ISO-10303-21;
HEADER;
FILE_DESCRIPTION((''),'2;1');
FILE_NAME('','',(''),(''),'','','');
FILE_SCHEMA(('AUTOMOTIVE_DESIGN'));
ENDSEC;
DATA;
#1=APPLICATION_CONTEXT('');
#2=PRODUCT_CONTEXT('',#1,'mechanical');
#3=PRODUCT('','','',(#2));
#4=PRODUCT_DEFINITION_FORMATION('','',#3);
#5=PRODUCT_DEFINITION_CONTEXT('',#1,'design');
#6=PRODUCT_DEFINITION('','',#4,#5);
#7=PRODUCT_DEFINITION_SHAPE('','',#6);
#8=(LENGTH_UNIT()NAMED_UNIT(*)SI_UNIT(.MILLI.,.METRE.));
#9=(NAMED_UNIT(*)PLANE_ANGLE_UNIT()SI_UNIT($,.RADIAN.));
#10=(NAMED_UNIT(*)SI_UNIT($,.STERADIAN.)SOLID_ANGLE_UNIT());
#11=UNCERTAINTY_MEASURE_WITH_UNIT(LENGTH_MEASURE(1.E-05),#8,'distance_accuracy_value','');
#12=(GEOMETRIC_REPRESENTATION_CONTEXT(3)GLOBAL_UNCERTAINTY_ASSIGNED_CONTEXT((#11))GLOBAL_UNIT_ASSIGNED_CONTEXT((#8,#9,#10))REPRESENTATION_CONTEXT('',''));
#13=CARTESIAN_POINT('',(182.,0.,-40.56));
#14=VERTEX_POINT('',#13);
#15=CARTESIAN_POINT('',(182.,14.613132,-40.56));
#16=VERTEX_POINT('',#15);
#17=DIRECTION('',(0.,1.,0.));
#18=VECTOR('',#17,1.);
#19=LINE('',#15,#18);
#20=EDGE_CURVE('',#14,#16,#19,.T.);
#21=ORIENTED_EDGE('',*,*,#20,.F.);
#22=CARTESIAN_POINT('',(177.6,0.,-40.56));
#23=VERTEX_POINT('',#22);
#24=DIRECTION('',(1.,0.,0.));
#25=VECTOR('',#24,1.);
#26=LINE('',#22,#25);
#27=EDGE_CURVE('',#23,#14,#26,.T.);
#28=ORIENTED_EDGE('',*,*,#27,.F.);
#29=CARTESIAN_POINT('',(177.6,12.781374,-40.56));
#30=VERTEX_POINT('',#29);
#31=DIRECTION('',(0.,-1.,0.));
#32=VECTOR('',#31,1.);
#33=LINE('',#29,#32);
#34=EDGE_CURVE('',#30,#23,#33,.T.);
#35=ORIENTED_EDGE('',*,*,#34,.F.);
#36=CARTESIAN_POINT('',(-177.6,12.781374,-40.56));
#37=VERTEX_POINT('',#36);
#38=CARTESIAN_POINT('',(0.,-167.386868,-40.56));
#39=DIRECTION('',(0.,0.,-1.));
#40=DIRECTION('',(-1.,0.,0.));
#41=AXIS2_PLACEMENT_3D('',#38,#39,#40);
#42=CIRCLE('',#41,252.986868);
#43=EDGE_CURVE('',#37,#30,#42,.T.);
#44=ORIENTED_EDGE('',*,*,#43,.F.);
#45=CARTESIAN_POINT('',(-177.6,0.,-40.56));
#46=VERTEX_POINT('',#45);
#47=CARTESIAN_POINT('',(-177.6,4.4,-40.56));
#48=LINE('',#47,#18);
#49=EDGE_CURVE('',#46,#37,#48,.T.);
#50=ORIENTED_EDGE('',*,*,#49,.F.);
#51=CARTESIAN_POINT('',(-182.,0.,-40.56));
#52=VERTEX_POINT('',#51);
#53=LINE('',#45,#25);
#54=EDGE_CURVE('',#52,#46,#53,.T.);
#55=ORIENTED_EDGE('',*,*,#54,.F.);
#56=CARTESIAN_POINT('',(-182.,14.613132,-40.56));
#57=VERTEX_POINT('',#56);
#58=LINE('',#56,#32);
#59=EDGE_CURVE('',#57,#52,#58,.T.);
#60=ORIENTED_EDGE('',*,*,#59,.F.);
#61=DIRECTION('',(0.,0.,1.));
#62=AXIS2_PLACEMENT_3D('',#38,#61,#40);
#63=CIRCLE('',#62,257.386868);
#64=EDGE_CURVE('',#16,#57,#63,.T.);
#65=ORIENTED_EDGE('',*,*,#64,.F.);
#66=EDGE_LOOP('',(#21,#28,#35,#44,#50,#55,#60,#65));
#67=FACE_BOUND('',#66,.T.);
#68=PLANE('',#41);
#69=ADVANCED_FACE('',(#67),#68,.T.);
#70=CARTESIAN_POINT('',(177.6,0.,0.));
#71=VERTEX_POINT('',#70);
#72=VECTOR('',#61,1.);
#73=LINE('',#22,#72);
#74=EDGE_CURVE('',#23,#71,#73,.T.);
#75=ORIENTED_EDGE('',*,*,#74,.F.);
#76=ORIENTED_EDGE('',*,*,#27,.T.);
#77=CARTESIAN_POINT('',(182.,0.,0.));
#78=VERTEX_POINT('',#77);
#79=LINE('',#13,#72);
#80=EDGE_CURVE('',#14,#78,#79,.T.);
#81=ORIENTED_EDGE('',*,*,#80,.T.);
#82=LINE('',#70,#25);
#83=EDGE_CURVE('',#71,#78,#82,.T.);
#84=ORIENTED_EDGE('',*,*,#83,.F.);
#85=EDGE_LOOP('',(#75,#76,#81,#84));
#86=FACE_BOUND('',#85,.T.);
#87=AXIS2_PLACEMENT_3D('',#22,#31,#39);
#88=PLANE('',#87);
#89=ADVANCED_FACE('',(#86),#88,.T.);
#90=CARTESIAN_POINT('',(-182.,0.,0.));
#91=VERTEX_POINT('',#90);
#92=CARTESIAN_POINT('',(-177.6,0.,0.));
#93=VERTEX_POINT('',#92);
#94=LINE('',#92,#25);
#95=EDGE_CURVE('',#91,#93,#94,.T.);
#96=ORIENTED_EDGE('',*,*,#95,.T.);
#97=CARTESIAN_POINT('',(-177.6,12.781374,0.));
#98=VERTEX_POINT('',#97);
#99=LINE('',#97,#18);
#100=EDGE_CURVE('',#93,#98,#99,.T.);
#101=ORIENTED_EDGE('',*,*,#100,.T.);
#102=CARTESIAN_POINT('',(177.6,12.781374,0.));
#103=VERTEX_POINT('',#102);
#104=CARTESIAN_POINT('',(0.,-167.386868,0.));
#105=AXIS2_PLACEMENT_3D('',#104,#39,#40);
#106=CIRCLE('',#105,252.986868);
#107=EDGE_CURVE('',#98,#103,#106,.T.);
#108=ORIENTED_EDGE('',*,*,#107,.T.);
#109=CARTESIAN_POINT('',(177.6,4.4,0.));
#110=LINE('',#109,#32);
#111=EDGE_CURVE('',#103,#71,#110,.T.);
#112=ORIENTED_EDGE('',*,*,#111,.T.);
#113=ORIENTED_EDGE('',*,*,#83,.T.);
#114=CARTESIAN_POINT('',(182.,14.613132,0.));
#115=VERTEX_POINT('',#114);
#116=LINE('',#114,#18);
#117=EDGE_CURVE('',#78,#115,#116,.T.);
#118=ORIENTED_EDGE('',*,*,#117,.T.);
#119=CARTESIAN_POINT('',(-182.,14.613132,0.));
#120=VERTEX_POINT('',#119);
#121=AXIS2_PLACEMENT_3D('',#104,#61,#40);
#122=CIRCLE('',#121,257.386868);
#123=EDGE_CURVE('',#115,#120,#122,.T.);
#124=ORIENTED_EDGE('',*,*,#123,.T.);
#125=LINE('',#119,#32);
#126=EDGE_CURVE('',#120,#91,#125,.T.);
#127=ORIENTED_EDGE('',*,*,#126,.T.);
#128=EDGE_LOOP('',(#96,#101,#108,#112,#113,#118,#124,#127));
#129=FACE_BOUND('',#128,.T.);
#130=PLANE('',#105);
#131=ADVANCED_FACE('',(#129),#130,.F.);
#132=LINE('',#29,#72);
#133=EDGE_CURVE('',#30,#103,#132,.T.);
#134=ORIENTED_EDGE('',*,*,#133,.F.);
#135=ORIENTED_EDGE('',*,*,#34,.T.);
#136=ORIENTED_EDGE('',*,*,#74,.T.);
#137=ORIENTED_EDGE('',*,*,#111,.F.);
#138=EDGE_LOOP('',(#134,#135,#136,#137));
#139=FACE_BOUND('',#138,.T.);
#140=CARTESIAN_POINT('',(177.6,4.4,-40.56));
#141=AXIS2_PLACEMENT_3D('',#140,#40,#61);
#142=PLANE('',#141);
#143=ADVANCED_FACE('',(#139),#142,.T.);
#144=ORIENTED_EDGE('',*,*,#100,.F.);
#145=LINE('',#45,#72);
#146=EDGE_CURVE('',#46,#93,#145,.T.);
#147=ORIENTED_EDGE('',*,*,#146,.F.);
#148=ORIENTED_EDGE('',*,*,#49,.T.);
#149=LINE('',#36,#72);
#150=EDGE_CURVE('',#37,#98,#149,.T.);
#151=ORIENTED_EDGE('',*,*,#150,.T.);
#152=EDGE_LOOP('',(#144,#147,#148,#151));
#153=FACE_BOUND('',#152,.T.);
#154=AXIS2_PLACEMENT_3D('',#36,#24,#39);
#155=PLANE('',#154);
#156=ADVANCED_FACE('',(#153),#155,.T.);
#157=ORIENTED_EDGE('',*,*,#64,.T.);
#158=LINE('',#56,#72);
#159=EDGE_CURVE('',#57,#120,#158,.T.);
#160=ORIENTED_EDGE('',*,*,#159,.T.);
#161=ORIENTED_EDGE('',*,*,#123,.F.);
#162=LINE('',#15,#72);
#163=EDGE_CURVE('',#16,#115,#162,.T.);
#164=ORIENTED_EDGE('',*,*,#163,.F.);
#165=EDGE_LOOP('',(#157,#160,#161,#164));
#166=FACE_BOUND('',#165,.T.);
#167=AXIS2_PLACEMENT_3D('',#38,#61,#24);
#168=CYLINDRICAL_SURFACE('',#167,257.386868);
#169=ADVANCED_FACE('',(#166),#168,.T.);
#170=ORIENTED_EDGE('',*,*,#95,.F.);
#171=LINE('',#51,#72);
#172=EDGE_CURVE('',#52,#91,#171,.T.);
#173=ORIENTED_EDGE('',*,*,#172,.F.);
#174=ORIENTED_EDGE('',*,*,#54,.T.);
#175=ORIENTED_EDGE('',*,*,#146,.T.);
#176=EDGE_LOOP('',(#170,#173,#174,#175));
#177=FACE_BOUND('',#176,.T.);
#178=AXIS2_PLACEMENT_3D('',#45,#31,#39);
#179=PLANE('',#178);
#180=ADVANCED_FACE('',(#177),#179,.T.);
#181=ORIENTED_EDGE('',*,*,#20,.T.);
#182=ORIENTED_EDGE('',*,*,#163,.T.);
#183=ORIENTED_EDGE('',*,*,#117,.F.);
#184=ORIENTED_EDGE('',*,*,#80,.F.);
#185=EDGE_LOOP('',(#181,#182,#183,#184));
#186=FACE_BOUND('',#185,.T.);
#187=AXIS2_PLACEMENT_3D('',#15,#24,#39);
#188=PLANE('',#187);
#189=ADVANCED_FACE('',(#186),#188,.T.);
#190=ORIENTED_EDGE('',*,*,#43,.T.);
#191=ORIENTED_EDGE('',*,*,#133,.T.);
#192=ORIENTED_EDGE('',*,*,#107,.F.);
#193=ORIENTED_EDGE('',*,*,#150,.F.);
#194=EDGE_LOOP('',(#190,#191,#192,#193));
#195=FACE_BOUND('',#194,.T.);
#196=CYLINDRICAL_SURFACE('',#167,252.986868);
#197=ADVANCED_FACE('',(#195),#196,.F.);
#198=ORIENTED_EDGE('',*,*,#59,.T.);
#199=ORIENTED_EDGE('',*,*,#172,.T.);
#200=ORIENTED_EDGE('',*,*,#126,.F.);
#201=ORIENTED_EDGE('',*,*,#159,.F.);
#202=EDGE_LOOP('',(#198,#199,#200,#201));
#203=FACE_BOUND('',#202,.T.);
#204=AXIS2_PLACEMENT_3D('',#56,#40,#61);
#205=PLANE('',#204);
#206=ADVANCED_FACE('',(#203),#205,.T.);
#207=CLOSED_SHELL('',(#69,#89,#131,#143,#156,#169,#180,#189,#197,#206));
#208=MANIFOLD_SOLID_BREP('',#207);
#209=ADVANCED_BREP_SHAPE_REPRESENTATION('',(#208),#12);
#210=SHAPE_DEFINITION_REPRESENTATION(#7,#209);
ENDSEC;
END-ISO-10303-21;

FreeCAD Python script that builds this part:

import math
import FreeCAD as App
import Part
import Sketcher

V = App.Vector

doc = App.newDocument("Part")
body = doc.addObject("PartDesign::Body", "Body")

# Sketch on XY plane
sketch1 = body.newObject("Sketcher::SketchObject", "Sketch")
sketch1.AttachmentSupport = (doc.getObject("XY_Plane"), [""])
sketch1.MapMode = "FlatFace"
sketch1.addGeometry(Part.ArcOfCircle(Part.Circle(V(0, -167.386868, 0), V(0, 0, 1), 257.386868), math.radians(45), math.radians(135)), False)
sketch1.addGeometry(Part.LineSegment(V(-182, 14.613132, 0), V(-182, 0, 0)), False)
sketch1.addGeometry(Part.LineSegment(V(-182, 0, 0), V(-177.6, 0, 0)), False)
sketch1.addGeometry(Part.LineSegment(V(-177.6, 0, 0), V(-177.6, 12.781374, 0)), False)
sketch1.addGeometry(Part.ArcOfCircle(Part.Circle(V(0, -167.386868, 0), V(0, 0, 1), 252.986868), math.radians(45.411291), math.radians(134.588709)), False)
sketch1.addGeometry(Part.LineSegment(V(177.6, 12.781374, 0), V(177.6, 0, 0)), False)
sketch1.addGeometry(Part.LineSegment(V(177.6, 0, 0), V(182, 0, 0)), False)
sketch1.addGeometry(Part.LineSegment(V(182, 0, 0), V(182, 14.613132, 0)), False)
sketch1.addConstraint(Sketcher.Constraint("Coincident", 0, 2, 1, 1))
sketch1.addConstraint(Sketcher.Constraint("Coincident", 1, 2, 2, 1))
sketch1.addConstraint(Sketcher.Constraint("Coincident", 2, 2, 3, 1))
sketch1.addConstraint(Sketcher.Constraint("Coincident", 3, 2, 4, 2))
sketch1.addConstraint(Sketcher.Constraint("Coincident", 4, 1, 5, 1))
sketch1.addConstraint(Sketcher.Constraint("Coincident", 5, 2, 6, 1))
sketch1.addConstraint(Sketcher.Constraint("Coincident", 6, 2, 7, 1))
sketch1.addConstraint(Sketcher.Constraint("Coincident", 7, 2, 0, 1))
sketch1.addConstraint(Sketcher.Constraint("Vertical", 1))
sketch1.addConstraint(Sketcher.Constraint("Horizontal", 2))
sketch1.addConstraint(Sketcher.Constraint("Vertical", 3))
sketch1.addConstraint(Sketcher.Constraint("Vertical", 5))
sketch1.addConstraint(Sketcher.Constraint("Horizontal", 6))
sketch1.addConstraint(Sketcher.Constraint("Vertical", 7))
sketch1.addConstraint(Sketcher.Constraint("Coincident", 4, 3, 0, 3))
sketch1.addConstraint(Sketcher.Constraint("Symmetric", 2, 2, 5, 2, -1, 1))
sketch1.addConstraint(Sketcher.Constraint("Symmetric", 1, 2, 6, 2, -2))
sketch1.addConstraint(Sketcher.Constraint("PointOnObject", 0, 3, -2))
sketch1.addConstraint(Sketcher.Constraint("DistanceX", 2, 1, 2, 2, 4.4))
sketch1.addConstraint(Sketcher.Constraint("DistanceX", 1, 2, -1, 1, 182.0))
sketch1.addConstraint(Sketcher.Constraint("DistanceY", 0, 3, 0, 2, 182.0))
sketch1.addConstraint(Sketcher.Constraint("Radius", 4, 252.986868))
sketch1.addConstraint(Sketcher.Constraint("DistanceY", 1, 2, 1, 1, 14.613132))
pad1 = body.newObject("PartDesign::Pad", "Pad")
pad1.Profile = sketch1
pad1.Length = 40.56
pad1.Reversed = True

doc.recompute()
